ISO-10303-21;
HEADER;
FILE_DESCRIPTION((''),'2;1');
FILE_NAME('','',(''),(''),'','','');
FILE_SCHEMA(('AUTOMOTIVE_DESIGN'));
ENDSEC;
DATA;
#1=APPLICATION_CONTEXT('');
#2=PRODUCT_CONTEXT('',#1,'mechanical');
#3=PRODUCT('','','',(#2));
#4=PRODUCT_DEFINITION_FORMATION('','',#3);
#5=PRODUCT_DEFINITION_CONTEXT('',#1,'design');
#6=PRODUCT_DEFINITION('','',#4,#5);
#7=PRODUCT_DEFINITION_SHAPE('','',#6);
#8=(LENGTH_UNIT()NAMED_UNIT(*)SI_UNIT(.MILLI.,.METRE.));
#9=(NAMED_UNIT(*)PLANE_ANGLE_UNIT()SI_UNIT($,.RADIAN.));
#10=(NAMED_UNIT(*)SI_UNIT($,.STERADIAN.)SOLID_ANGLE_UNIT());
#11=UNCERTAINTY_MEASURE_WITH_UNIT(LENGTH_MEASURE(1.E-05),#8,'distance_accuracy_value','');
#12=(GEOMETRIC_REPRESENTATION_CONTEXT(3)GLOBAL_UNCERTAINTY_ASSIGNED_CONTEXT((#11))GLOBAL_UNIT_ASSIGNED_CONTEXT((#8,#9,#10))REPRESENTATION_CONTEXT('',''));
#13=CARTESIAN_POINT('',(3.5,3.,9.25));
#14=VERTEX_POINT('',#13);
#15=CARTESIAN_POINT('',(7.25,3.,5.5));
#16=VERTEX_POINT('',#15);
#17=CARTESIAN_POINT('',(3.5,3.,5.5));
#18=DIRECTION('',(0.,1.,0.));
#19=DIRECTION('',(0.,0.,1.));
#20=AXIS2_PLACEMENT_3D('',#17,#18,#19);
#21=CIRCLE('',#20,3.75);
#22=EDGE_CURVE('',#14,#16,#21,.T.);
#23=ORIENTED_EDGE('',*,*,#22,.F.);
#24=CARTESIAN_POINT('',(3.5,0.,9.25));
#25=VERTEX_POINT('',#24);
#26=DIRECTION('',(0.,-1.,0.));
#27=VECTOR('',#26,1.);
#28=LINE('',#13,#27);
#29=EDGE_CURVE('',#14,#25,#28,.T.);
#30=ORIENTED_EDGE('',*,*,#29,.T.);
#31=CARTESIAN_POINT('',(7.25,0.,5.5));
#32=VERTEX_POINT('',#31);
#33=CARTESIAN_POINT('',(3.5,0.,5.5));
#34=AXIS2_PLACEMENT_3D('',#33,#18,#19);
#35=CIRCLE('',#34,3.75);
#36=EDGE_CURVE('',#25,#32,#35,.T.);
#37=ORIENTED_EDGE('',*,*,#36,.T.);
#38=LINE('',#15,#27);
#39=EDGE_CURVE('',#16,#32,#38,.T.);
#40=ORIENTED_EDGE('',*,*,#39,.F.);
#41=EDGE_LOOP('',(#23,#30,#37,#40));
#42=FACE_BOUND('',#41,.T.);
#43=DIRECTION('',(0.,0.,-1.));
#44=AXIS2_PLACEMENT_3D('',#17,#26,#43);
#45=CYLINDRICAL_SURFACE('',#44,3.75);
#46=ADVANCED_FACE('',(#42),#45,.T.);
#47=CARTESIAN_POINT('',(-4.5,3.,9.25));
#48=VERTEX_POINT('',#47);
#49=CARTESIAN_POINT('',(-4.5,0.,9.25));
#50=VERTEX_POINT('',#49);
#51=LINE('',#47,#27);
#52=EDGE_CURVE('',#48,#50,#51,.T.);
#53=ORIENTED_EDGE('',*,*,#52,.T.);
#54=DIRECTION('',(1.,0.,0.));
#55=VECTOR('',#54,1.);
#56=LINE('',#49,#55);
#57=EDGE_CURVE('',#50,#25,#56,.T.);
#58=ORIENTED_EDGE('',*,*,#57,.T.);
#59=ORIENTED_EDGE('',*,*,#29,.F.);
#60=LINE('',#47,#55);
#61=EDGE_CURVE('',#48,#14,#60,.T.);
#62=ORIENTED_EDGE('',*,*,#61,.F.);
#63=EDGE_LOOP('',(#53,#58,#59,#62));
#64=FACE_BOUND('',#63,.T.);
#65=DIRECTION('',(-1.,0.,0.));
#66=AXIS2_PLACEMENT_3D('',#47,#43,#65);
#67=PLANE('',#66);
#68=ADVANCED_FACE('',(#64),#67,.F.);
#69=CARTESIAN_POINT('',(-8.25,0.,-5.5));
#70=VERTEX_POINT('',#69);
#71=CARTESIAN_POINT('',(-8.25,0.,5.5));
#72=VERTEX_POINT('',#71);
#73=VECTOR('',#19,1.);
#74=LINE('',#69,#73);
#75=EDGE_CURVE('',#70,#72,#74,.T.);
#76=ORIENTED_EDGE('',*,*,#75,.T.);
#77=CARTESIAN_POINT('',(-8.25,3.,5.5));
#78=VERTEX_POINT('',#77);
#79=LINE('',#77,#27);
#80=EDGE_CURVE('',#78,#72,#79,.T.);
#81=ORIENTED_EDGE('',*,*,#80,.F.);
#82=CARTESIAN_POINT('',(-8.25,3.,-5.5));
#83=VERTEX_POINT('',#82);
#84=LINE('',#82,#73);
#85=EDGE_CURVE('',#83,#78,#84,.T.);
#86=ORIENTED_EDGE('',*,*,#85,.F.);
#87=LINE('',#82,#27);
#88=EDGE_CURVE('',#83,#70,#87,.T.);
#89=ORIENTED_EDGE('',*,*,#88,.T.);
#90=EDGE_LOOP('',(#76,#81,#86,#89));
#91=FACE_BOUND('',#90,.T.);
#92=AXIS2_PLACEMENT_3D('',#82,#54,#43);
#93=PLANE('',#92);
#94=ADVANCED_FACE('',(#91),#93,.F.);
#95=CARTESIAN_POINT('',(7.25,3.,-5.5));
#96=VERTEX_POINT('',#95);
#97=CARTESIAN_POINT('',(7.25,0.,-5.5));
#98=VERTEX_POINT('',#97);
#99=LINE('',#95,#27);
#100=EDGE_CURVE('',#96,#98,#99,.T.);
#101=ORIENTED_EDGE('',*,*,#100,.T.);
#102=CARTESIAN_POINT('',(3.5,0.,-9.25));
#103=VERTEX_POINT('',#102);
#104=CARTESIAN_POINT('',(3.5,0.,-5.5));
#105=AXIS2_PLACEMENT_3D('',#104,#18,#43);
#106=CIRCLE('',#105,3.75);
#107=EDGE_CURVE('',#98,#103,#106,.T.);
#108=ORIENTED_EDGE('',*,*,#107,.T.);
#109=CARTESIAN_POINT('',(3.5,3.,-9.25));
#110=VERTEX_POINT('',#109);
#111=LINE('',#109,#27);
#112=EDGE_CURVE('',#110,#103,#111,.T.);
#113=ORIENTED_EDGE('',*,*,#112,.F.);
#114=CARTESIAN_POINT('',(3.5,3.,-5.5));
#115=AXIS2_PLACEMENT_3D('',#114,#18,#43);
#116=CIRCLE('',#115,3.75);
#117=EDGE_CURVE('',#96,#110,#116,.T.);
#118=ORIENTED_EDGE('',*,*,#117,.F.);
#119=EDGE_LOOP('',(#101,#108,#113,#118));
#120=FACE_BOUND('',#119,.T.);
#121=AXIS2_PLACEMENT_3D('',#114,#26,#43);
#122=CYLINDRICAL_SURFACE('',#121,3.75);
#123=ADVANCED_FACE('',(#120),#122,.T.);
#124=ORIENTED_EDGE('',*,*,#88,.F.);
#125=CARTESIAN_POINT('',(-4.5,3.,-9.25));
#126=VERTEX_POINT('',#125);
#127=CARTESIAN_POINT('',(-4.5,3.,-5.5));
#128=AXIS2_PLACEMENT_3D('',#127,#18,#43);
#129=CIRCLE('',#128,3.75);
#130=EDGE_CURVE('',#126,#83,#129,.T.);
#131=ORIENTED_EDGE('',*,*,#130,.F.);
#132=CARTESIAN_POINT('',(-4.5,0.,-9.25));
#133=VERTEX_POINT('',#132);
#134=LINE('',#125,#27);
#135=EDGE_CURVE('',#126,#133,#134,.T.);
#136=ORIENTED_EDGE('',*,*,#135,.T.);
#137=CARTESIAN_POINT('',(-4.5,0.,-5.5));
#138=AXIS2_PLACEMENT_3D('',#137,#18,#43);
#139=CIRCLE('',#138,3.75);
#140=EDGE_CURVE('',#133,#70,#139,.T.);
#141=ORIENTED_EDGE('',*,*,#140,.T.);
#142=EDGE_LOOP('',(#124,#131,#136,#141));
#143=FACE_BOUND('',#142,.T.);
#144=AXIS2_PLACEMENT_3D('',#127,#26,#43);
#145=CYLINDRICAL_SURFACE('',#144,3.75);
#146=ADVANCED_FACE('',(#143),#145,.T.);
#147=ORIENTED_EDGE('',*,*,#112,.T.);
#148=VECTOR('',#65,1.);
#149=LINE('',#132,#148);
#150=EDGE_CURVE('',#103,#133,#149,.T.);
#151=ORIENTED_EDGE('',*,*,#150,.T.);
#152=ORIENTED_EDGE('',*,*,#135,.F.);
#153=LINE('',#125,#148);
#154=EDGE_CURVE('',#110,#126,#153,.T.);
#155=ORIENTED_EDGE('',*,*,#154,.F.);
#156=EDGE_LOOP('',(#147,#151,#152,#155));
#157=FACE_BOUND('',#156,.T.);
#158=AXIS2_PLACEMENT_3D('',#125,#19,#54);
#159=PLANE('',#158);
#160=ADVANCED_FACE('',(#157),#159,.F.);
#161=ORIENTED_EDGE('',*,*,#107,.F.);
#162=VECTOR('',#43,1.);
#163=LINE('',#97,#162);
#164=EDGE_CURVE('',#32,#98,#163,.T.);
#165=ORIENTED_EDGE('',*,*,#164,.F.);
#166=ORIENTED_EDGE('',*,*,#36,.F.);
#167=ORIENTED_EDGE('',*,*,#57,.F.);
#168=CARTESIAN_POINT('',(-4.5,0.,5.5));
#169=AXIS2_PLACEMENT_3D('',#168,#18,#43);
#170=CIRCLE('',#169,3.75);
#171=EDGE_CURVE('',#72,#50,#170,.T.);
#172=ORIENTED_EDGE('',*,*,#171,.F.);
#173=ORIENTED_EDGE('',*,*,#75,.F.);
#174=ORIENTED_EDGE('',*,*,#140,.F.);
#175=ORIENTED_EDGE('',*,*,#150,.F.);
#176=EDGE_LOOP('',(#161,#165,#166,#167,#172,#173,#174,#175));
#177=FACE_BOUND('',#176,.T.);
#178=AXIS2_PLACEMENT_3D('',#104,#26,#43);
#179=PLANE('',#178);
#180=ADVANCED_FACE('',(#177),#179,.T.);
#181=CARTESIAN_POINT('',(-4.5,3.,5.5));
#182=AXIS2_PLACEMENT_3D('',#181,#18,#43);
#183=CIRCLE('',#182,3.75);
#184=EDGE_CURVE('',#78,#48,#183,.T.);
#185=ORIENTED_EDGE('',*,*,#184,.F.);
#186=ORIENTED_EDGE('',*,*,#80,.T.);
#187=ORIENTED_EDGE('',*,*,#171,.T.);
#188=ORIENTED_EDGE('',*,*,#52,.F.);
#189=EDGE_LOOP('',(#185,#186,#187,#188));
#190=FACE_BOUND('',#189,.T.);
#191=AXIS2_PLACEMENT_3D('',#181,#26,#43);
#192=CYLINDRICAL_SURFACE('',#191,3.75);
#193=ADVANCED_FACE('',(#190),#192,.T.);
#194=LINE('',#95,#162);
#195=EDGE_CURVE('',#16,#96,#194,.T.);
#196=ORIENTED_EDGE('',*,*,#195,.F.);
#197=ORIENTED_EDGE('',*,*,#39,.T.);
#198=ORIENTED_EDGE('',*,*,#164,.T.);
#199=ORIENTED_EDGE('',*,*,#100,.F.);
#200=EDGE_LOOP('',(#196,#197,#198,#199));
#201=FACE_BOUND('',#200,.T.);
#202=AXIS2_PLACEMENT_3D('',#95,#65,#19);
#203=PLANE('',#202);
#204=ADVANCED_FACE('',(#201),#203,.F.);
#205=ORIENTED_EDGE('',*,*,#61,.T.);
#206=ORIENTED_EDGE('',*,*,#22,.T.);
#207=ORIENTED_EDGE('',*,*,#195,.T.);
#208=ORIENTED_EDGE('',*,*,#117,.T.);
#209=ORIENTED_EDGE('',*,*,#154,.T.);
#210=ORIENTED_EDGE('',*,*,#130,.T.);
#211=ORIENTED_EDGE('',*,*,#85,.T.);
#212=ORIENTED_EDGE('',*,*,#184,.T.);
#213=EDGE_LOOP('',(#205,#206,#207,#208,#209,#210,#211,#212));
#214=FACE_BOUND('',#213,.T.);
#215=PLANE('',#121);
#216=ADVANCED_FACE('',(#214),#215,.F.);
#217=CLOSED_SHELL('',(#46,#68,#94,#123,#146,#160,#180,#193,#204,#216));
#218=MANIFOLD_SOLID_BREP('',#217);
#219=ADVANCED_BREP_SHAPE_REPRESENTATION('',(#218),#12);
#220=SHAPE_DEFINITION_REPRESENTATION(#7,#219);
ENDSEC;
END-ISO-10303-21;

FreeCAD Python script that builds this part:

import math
import FreeCAD as App
import Part
import Sketcher

V = App.Vector

doc = App.newDocument("Part")
body = doc.addObject("PartDesign::Body", "Body")

sketch1 = body.newObject("Sketcher::SketchObject", "Sketch")
sketch1.AttachmentSupport = (doc.getObject("XZ_Plane"), [""])
sketch1.MapMode = "FlatFace"
sketch1.addGeometry(Part.LineSegment(V(3.5, -9.2, 0), V(-4.5, -9.2, 0)), False)
sketch1.addGeometry(Part.ArcOfCircle(Part.Circle(V(-4.5, -5.5, 0), V(0, 0, 1), 3.8), math.radians(-180), math.radians(-90)), False)
sketch1.addGeometry(Part.LineSegment(V(-8.2, -5.5, 0), V(-8.2, 5.5, 0)), False)
sketch1.addGeometry(Part.ArcOfCircle(Part.Circle(V(-4.5, 5.5, 0), V(0, 0, 1), 3.8), math.radians(90), math.radians(180)), False)
sketch1.addGeometry(Part.LineSegment(V(-4.5, 9.2, 0), V(3.5, 9.2, 0)), False)
sketch1.addGeometry(Part.ArcOfCircle(Part.Circle(V(3.5, 5.5, 0), V(0, 0, 1), 3.8), math.radians(0), math.radians(90)), False)
sketch1.addGeometry(Part.LineSegment(V(7.2, 5.5, 0), V(7.2, -5.5, 0)), False)
sketch1.addGeometry(Part.ArcOfCircle(Part.Circle(V(3.5, -5.5, 0), V(0, 0, 1), 3.8), math.radians(-90), math.radians(0)), False)
sketch1.addConstraint(Sketcher.Constraint("Tangent", 0, 2, 1, 2))
sketch1.addConstraint(Sketcher.Constraint("Tangent", 1, 1, 2, 1))
sketch1.addConstraint(Sketcher.Constraint("Tangent", 2, 2, 3, 2))
sketch1.addConstraint(Sketcher.Constraint("Tangent", 3, 1, 4, 1))
sketch1.addConstraint(Sketcher.Constraint("Tangent", 4, 2, 5, 2))
sketch1.addConstraint(Sketcher.Constraint("Tangent", 5, 1, 6, 1))
sketch1.addConstraint(Sketcher.Constraint("Tangent", 6, 2, 7, 2))
sketch1.addConstraint(Sketcher.Constraint("Tangent", 7, 1, 0, 1))
sketch1.addConstraint(Sketcher.Constraint("Horizontal", 0))
sketch1.addConstraint(Sketcher.Constraint("Vertical", 2))
sketch1.addConstraint(Sketcher.Constraint("Horizontal", 4))
sketch1.addConstraint(Sketcher.Constraint("Vertical", 6))
sketch1.addConstraint(Sketcher.Constraint("Equal", 1, 3))
sketch1.addConstraint(Sketcher.Constraint("Equal", 3, 5))
sketch1.addConstraint(Sketcher.Constraint("Equal", 5, 7))
sketch1.addConstraint(Sketcher.Constraint("DistanceX", 0, 2, 0, 1, 8.0))
sketch1.addConstraint(Sketcher.Constraint("DistanceY", 2, 1, 2, 2, 11.0))
sketch1.addConstraint(Sketcher.Constraint("Radius", 1, 3.75))
sketch1.addConstraint(Sketcher.Constraint("DistanceX", 1, 3, -1, 1, 4.5))
sketch1.addConstraint(Sketcher.Constraint("DistanceY", 1, 3, -1, 1, 5.5))
pad1 = body.newObject("PartDesign::Pad", "Pad")
pad1.Profile = sketch1
pad1.Length = 3
pad1.Reversed = True

doc.recompute()
